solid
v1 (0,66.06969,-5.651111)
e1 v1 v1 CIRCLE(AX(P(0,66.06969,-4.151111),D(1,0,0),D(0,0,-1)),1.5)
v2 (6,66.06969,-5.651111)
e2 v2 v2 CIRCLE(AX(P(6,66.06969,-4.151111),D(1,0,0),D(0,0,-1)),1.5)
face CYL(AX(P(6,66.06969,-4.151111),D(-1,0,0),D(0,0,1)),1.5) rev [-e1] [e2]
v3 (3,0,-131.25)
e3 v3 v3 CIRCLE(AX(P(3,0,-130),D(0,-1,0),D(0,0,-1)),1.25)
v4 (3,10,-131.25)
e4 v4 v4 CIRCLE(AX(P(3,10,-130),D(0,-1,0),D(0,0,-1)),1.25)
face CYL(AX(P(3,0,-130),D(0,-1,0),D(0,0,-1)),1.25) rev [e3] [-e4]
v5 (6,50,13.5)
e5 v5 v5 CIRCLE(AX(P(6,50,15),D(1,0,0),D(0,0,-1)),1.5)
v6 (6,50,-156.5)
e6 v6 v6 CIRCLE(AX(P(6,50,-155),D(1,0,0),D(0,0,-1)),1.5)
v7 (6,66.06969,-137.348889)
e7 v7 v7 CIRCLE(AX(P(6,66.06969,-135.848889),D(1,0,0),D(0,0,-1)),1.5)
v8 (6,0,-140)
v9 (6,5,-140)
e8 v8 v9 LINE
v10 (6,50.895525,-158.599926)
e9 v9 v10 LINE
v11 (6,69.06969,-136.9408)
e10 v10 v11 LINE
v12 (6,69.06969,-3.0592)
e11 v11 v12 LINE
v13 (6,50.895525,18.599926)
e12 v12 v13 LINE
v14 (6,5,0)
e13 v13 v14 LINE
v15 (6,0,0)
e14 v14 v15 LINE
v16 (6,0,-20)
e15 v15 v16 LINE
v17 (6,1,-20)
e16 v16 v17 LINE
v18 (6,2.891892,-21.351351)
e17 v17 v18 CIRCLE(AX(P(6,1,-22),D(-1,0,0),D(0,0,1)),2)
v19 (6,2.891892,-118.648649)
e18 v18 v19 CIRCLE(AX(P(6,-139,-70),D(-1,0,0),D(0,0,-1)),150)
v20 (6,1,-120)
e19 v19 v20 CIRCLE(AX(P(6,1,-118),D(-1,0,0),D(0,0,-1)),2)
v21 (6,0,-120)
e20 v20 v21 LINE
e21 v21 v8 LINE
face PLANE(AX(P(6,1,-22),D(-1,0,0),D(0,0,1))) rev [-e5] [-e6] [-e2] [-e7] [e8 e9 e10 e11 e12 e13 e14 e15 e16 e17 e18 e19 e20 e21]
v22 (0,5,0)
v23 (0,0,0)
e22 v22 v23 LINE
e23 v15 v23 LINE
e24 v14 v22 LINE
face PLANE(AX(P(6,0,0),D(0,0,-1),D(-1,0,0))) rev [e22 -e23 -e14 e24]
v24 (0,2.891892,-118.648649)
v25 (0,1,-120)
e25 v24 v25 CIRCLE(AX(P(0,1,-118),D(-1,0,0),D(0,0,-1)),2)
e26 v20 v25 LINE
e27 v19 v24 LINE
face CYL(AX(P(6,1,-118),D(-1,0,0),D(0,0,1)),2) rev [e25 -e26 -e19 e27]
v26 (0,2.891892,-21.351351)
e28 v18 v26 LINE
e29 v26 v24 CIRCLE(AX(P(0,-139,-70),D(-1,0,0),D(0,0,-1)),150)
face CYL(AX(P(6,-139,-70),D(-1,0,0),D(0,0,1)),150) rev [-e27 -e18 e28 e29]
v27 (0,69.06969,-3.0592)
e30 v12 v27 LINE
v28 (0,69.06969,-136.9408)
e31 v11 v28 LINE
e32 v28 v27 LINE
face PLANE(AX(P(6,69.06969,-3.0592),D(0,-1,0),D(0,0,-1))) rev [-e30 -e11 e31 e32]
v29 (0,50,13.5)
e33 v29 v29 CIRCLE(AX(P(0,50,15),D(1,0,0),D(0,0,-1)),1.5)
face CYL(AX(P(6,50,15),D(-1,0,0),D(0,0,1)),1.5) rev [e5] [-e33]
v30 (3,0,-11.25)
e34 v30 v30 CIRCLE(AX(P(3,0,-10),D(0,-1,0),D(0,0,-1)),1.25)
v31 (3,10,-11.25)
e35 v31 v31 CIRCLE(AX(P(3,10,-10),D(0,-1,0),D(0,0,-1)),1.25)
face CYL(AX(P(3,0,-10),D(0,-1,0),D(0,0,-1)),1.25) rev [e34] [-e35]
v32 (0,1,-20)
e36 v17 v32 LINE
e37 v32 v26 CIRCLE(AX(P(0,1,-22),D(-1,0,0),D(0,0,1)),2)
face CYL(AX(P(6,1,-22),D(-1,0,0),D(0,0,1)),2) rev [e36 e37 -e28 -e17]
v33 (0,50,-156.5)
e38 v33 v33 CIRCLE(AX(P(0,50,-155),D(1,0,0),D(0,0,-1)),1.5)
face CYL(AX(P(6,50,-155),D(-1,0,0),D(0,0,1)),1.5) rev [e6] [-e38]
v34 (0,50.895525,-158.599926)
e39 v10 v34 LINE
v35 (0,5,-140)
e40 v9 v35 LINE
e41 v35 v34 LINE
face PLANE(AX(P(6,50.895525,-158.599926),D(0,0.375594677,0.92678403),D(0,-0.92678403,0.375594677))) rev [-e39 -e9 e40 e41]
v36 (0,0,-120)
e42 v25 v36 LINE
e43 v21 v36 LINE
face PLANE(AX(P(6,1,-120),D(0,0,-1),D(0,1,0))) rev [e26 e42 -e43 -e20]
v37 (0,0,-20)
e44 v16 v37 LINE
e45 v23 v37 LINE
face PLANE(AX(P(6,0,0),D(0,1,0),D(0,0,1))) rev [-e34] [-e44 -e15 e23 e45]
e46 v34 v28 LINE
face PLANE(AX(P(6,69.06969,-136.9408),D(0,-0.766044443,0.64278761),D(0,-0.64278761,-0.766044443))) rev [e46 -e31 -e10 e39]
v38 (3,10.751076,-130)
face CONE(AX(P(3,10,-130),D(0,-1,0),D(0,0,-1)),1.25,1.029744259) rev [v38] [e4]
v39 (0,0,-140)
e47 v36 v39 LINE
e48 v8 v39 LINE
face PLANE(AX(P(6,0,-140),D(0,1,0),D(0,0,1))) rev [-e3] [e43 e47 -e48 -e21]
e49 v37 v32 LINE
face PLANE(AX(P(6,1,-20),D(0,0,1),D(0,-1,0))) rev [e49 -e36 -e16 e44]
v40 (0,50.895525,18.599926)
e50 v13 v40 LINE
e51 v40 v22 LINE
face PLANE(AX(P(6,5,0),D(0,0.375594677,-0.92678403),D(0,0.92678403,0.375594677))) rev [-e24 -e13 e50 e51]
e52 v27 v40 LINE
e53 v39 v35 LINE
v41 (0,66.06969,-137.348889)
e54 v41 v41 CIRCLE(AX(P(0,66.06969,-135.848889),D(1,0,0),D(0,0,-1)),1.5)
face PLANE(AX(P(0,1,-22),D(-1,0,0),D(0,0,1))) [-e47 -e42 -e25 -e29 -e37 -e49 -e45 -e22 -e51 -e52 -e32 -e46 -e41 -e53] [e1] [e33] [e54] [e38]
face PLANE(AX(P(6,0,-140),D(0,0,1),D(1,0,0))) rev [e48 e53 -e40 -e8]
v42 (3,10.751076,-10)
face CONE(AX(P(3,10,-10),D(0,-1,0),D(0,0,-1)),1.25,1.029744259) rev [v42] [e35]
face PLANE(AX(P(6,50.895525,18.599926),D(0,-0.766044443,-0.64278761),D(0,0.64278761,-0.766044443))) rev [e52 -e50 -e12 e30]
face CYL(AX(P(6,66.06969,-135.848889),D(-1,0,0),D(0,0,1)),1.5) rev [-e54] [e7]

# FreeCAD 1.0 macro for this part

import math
import FreeCAD as App
import Part
import Sketcher

V = App.Vector
Q = App.Units.Quantity

doc = App.newDocument("Part")
body = doc.addObject("PartDesign::Body", "Body")

# Sketch on YZ plane
sketch1 = body.newObject("Sketcher::SketchObject", "Sketch")
sketch1.AttachmentSupport = (doc.getObject("YZ_Plane"), [""])
sketch1.MapMode = "FlatFace"
sketch1.addGeometry(Part.LineSegment(V(5, 0, 0), V(0, 0, 0)), False)
sketch1.addGeometry(Part.LineSegment(V(0, 0, 0), V(0, -20, 0)), False)
sketch1.addGeometry(Part.LineSegment(V(0, -20, 0), V(1, -20, 0)), False)
sketch1.addGeometry(Part.ArcOfCircle(Part.Circle(V(1, -22, 0), V(0, 0, 1), 2), math.radians(18.924644), math.radians(90)), False)
sketch1.addGeometry(Part.ArcOfCircle(Part.Circle(V(-139, -70, 0), V(0, 0, 1), 150), math.radians(-18.924644), math.radians(18.924644)), False)
sketch1.addGeometry(Part.ArcOfCircle(Part.Circle(V(1, -118, 0), V(0, 0, 1), 2), math.radians(-90), math.radians(-18.924644)), False)
sketch1.addGeometry(Part.LineSegment(V(1, -120, 0), V(0, -120, 0)), False)
sketch1.addGeometry(Part.LineSegment(V(0, -120, 0), V(0, -140, 0)), False)
sketch1.addGeometry(Part.LineSegment(V(0, -140, 0), V(5, -140, 0)), False)
sketch1.addGeometry(Part.LineSegment(V(5, -140, 0), V(50.895525, -158.599926, 0)), False)
sketch1.addGeometry(Part.LineSegment(V(50.895525, -158.599926, 0), V(69.06969, -136.9408, 0)), False)
sketch1.addGeometry(Part.LineSegment(V(69.06969, -136.9408, 0), V(69.06969, -3.0592, 0)), False)
sketch1.addGeometry(Part.LineSegment(V(69.06969, -3.0592, 0), V(50.895525, 18.599926, 0)), False)
sketch1.addGeometry(Part.LineSegment(V(50.895525, 18.599926, 0), V(5, 0, 0)), False)
sketch1.addGeometry(Part.Circle(V(50, -155, 0), V(0, 0, 1), 1.5), False)
sketch1.addGeometry(Part.Circle(V(50, 15, 0), V(0, 0, 1), 1.5), False)
sketch1.addGeometry(Part.Circle(V(66.06969, -135.848889, 0), V(0, 0, 1), 1.5), False)
sketch1.addGeometry(Part.Circle(V(66.06969, -4.151111, 0), V(0, 0, 1), 1.5), False)
sketch1.addConstraint(Sketcher.Constraint("Coincident", 0, 2, 1, 1))
sketch1.addConstraint(Sketcher.Constraint("Coincident", 1, 2, 2, 1))
sketch1.addConstraint(Sketcher.Constraint("Tangent", 2, 2, 3, 2))
sketch1.addConstraint(Sketcher.Constraint("Tangent", 3, 1, 4, 2))
sketch1.addConstraint(Sketcher.Constraint("Tangent", 4, 1, 5, 2))
sketch1.addConstraint(Sketcher.Constraint("Tangent", 5, 1, 6, 1))
sketch1.addConstraint(Sketcher.Constraint("Coincident", 6, 2, 7, 1))
sketch1.addConstraint(Sketcher.Constraint("Coincident", 7, 2, 8, 1))
sketch1.addConstraint(Sketcher.Constraint("Coincident", 8, 2, 9, 1))
sketch1.addConstraint(Sketcher.Constraint("Coincident", 9, 2, 10, 1))
sketch1.addConstraint(Sketcher.Constraint("Coincident", 10, 2, 11, 1))
sketch1.addConstraint(Sketcher.Constraint("Coincident", 11, 2, 12, 1))
sketch1.addConstraint(Sketcher.Constraint("Coincident", 12, 2, 13, 1))
sketch1.addConstraint(Sketcher.Constraint("Coincident", 13, 2, 0, 1))
sketch1.addConstraint(Sketcher.Constraint("Horizontal", 0))
sketch1.addConstraint(Sketcher.Constraint("Vertical", 1))
sketch1.addConstraint(Sketcher.Constraint("Horizontal", 2))
sketch1.addConstraint(Sketcher.Constraint("Horizontal", 6))
sketch1.addConstraint(Sketcher.Constraint("Vertical", 7))
sketch1.addConstraint(Sketcher.Constraint("Horizontal", 8))
sketch1.addConstraint(Sketcher.Constraint("Vertical", 11))
sketch1.addConstraint(Sketcher.Constraint("Coincident", 0, 2, -1, 1))
sketch1.addConstraint(Sketcher.Constraint("Equal", 3, 5))
sketch1.addConstraint(Sketcher.Constraint("Equal", 14, 15))
sketch1.addConstraint(Sketcher.Constraint("Equal", 15, 16))
sketch1.addConstraint(Sketcher.Constraint("Equal", 16, 17))
sketch1.addConstraint(Sketcher.Constraint("PointOnObject", 6, 2, -2))
sketch1.addConstraint(Sketcher.Constraint("Vertical", 3, 3, 5, 3))
sketch1.addConstraint(Sketcher.Constraint("Vertical", 14, 3, 15, 3))
sketch1.addConstraint(Sketcher.Constraint("Vertical", 16, 3, 17, 3))
sketch1.addConstraint(Sketcher.Constraint("Vertical", 9, 2, 12, 2))
sketch1.addConstraint(Sketcher.Constraint("Vertical", 8, 2, 13, 2))
sketch1.addConstraint(Sketcher.Constraint("Equal", 1, 7))
sketch1.addConstraint(Sketcher.Constraint("Equal", 10, 12))
sketch1.addConstraint(Sketcher.Constraint("Equal", 9, 13))
sketch1.addConstraint(Sketcher.Constraint("Diameter", 14, 3.0))
sketch1.addConstraint(Sketcher.Constraint("Radius", 3, 2.0))
sketch1.addConstraint(Sketcher.Constraint("Radius", 4, 150.0))
sketch1.addConstraint(Sketcher.Constraint("DistanceX", 0, 2, 0, 1, 5.0))
sketch1.addConstraint(Sketcher.Constraint("DistanceX", 2, 1, 2, 2, 1.0))
sketch1.addConstraint(Sketcher.Constraint("DistanceY", 1, 2, 1, 1, 20.0))
sketch1.addConstraint(Sketcher.Constraint("Angle", 10, Q("50 deg")))
sketch1.addConstraint(Sketcher.Constraint("DistanceX", 4, 3, -1, 1, 139.0))
sketch1.addConstraint(Sketcher.Constraint("DistanceX", -1, 1, 14, 3, 50.0))
sketch1.addConstraint(Sketcher.Constraint("DistanceY", 14, 3, -1, 1, 155.0))
sketch1.addConstraint(Sketcher.Constraint("DistanceY", -1, 1, 15, 3, 15.0))
sketch1.addConstraint(Sketcher.Constraint("DistanceX", 16, 3, 10, 2, 3.0))
sketch1.addConstraint(Sketcher.Constraint("DistanceY", 11, 1, 11, 2, 133.881599))
sketch1.addConstraint(Sketcher.Constraint("DistanceX", 4, 1, 16, 3, 63.177798))
sketch1.addConstraint(Sketcher.Constraint("DistanceY", 16, 3, -1, 1, 135.848889))
sketch1.addConstraint(Sketcher.Constraint("DistanceY", 17, 3, -1, 1, 4.151111))
sketch1.addConstraint(Sketcher.Constraint("Distance", 9, 49.521273))
pad1 = body.newObject("PartDesign::Pad", "Pad")
pad1.Profile = sketch1
pad1.Length = 6

# Sketch on XZ plane
sketch2 = body.newObject("Sketcher::SketchObject", "Sketch001")
sketch2.AttachmentSupport = (doc.getObject("XZ_Plane"), [""])
sketch2.MapMode = "FlatFace"
sketch2.addGeometry(Part.Circle(V(3, -10, 0), V(0, 0, 1), 1.25), False)
sketch2.addGeometry(Part.Circle(V(3, -130, 0), V(0, 0, 1), 1.25), False)
sketch2.addConstraint(Sketcher.Constraint("Equal", 0, 1))
sketch2.addConstraint(Sketcher.Constraint("Vertical", 0, 3, 1, 3))
sketch2.addConstraint(Sketcher.Constraint("Diameter", 0, 2.5))
sketch2.addConstraint(Sketcher.Constraint("DistanceX", -1, 1, 0, 3, 3.0))
sketch2.addConstraint(Sketcher.Constraint("DistanceY", 0, 3, -1, 1, 10.0))
sketch2.addConstraint(Sketcher.Constraint("DistanceY", 1, 3, -1, 1, 130.0))
doc.recompute()
hole = body.newObject("PartDesign::Hole", "Hole")
hole.Profile = sketch2
hole.ThreadType = "None"
hole.Diameter = 2.5
hole.DepthType = "Dimension"
hole.Depth = 10
hole.DrillPoint = "Angled"
hole.DrillPointAngle = 118

doc.recompute()
